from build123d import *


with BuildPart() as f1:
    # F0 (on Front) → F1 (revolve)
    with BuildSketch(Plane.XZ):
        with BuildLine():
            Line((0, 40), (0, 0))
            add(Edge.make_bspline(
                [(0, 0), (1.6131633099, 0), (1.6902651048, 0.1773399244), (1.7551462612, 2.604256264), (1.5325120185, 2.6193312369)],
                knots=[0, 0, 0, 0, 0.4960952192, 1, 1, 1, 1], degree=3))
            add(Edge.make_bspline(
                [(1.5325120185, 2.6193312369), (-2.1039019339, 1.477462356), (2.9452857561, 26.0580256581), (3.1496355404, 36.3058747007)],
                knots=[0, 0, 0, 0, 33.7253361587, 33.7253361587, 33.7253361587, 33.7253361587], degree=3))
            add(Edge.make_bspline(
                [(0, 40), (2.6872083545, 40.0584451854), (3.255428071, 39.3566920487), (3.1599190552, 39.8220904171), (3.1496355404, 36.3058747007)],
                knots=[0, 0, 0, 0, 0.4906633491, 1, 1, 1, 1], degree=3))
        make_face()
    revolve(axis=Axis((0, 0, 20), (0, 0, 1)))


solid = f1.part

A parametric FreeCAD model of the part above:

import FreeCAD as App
import Part
import Sketcher
from FreeCAD import Vector

doc = App.newDocument("Part")
body = doc.addObject("PartDesign::Body", "Body")

# Sketch on XZ plane
sketch1 = body.newObject("Sketcher::SketchObject", "Sketch")
sketch1.AttachmentSupport = (doc.getObject("XZ_Plane"), [""])
sketch1.MapMode = "FlatFace"
sketch1.addGeometry(Part.LineSegment(Vector(0, 40, 0), Vector(0, 0, 0)), False)
sketch1.addGeometry(Part.BSplineCurve([Vector(0, 0, 0), Vector(1.613163, 0, 0), Vector(1.690265, 0.17734, 0), Vector(1.755146, 2.604256, 0), Vector(1.532512, 2.619331, 0)], [4, 1, 4], [0, 0.496095219, 1], False, 3, [1, 1, 1, 1, 1], False), False)
sketch1.addGeometry(Part.BSplineCurve([Vector(1.532512, 2.619331, 0), Vector(-2.103902, 1.477462, 0), Vector(2.945286, 26.058026, 0), Vector(3.149636, 36.305875, 0)], [4, 4], [0, 33.725336159], False, 3, [1, 1, 1, 1], False), False)
sketch1.addGeometry(Part.BSplineCurve([Vector(0, 40, 0), Vector(2.687208, 40.058445, 0), Vector(3.255428, 39.356692, 0), Vector(3.159919, 39.82209, 0), Vector(3.149636, 36.305875, 0)], [4, 1, 4], [0, 0.490663349, 1], False, 3, [1, 1, 1, 1, 1], False), False)
sketch1.addConstraint(Sketcher.Constraint("Block", 1))
sketch1.addConstraint(Sketcher.Constraint("Block", 2))
sketch1.addConstraint(Sketcher.Constraint("Block", 3))
sketch1.addConstraint(Sketcher.Constraint("Coincident", 0, 2, 1, 1))
sketch1.addConstraint(Sketcher.Constraint("Coincident", 3, 1, 0, 1))
revolution = body.newObject("PartDesign::Revolution", "Revolution")
revolution.Profile = sketch1
revolution.ReferenceAxis = (sketch1, ["V_Axis"])
revolution.Angle = 360

doc.recompute()
